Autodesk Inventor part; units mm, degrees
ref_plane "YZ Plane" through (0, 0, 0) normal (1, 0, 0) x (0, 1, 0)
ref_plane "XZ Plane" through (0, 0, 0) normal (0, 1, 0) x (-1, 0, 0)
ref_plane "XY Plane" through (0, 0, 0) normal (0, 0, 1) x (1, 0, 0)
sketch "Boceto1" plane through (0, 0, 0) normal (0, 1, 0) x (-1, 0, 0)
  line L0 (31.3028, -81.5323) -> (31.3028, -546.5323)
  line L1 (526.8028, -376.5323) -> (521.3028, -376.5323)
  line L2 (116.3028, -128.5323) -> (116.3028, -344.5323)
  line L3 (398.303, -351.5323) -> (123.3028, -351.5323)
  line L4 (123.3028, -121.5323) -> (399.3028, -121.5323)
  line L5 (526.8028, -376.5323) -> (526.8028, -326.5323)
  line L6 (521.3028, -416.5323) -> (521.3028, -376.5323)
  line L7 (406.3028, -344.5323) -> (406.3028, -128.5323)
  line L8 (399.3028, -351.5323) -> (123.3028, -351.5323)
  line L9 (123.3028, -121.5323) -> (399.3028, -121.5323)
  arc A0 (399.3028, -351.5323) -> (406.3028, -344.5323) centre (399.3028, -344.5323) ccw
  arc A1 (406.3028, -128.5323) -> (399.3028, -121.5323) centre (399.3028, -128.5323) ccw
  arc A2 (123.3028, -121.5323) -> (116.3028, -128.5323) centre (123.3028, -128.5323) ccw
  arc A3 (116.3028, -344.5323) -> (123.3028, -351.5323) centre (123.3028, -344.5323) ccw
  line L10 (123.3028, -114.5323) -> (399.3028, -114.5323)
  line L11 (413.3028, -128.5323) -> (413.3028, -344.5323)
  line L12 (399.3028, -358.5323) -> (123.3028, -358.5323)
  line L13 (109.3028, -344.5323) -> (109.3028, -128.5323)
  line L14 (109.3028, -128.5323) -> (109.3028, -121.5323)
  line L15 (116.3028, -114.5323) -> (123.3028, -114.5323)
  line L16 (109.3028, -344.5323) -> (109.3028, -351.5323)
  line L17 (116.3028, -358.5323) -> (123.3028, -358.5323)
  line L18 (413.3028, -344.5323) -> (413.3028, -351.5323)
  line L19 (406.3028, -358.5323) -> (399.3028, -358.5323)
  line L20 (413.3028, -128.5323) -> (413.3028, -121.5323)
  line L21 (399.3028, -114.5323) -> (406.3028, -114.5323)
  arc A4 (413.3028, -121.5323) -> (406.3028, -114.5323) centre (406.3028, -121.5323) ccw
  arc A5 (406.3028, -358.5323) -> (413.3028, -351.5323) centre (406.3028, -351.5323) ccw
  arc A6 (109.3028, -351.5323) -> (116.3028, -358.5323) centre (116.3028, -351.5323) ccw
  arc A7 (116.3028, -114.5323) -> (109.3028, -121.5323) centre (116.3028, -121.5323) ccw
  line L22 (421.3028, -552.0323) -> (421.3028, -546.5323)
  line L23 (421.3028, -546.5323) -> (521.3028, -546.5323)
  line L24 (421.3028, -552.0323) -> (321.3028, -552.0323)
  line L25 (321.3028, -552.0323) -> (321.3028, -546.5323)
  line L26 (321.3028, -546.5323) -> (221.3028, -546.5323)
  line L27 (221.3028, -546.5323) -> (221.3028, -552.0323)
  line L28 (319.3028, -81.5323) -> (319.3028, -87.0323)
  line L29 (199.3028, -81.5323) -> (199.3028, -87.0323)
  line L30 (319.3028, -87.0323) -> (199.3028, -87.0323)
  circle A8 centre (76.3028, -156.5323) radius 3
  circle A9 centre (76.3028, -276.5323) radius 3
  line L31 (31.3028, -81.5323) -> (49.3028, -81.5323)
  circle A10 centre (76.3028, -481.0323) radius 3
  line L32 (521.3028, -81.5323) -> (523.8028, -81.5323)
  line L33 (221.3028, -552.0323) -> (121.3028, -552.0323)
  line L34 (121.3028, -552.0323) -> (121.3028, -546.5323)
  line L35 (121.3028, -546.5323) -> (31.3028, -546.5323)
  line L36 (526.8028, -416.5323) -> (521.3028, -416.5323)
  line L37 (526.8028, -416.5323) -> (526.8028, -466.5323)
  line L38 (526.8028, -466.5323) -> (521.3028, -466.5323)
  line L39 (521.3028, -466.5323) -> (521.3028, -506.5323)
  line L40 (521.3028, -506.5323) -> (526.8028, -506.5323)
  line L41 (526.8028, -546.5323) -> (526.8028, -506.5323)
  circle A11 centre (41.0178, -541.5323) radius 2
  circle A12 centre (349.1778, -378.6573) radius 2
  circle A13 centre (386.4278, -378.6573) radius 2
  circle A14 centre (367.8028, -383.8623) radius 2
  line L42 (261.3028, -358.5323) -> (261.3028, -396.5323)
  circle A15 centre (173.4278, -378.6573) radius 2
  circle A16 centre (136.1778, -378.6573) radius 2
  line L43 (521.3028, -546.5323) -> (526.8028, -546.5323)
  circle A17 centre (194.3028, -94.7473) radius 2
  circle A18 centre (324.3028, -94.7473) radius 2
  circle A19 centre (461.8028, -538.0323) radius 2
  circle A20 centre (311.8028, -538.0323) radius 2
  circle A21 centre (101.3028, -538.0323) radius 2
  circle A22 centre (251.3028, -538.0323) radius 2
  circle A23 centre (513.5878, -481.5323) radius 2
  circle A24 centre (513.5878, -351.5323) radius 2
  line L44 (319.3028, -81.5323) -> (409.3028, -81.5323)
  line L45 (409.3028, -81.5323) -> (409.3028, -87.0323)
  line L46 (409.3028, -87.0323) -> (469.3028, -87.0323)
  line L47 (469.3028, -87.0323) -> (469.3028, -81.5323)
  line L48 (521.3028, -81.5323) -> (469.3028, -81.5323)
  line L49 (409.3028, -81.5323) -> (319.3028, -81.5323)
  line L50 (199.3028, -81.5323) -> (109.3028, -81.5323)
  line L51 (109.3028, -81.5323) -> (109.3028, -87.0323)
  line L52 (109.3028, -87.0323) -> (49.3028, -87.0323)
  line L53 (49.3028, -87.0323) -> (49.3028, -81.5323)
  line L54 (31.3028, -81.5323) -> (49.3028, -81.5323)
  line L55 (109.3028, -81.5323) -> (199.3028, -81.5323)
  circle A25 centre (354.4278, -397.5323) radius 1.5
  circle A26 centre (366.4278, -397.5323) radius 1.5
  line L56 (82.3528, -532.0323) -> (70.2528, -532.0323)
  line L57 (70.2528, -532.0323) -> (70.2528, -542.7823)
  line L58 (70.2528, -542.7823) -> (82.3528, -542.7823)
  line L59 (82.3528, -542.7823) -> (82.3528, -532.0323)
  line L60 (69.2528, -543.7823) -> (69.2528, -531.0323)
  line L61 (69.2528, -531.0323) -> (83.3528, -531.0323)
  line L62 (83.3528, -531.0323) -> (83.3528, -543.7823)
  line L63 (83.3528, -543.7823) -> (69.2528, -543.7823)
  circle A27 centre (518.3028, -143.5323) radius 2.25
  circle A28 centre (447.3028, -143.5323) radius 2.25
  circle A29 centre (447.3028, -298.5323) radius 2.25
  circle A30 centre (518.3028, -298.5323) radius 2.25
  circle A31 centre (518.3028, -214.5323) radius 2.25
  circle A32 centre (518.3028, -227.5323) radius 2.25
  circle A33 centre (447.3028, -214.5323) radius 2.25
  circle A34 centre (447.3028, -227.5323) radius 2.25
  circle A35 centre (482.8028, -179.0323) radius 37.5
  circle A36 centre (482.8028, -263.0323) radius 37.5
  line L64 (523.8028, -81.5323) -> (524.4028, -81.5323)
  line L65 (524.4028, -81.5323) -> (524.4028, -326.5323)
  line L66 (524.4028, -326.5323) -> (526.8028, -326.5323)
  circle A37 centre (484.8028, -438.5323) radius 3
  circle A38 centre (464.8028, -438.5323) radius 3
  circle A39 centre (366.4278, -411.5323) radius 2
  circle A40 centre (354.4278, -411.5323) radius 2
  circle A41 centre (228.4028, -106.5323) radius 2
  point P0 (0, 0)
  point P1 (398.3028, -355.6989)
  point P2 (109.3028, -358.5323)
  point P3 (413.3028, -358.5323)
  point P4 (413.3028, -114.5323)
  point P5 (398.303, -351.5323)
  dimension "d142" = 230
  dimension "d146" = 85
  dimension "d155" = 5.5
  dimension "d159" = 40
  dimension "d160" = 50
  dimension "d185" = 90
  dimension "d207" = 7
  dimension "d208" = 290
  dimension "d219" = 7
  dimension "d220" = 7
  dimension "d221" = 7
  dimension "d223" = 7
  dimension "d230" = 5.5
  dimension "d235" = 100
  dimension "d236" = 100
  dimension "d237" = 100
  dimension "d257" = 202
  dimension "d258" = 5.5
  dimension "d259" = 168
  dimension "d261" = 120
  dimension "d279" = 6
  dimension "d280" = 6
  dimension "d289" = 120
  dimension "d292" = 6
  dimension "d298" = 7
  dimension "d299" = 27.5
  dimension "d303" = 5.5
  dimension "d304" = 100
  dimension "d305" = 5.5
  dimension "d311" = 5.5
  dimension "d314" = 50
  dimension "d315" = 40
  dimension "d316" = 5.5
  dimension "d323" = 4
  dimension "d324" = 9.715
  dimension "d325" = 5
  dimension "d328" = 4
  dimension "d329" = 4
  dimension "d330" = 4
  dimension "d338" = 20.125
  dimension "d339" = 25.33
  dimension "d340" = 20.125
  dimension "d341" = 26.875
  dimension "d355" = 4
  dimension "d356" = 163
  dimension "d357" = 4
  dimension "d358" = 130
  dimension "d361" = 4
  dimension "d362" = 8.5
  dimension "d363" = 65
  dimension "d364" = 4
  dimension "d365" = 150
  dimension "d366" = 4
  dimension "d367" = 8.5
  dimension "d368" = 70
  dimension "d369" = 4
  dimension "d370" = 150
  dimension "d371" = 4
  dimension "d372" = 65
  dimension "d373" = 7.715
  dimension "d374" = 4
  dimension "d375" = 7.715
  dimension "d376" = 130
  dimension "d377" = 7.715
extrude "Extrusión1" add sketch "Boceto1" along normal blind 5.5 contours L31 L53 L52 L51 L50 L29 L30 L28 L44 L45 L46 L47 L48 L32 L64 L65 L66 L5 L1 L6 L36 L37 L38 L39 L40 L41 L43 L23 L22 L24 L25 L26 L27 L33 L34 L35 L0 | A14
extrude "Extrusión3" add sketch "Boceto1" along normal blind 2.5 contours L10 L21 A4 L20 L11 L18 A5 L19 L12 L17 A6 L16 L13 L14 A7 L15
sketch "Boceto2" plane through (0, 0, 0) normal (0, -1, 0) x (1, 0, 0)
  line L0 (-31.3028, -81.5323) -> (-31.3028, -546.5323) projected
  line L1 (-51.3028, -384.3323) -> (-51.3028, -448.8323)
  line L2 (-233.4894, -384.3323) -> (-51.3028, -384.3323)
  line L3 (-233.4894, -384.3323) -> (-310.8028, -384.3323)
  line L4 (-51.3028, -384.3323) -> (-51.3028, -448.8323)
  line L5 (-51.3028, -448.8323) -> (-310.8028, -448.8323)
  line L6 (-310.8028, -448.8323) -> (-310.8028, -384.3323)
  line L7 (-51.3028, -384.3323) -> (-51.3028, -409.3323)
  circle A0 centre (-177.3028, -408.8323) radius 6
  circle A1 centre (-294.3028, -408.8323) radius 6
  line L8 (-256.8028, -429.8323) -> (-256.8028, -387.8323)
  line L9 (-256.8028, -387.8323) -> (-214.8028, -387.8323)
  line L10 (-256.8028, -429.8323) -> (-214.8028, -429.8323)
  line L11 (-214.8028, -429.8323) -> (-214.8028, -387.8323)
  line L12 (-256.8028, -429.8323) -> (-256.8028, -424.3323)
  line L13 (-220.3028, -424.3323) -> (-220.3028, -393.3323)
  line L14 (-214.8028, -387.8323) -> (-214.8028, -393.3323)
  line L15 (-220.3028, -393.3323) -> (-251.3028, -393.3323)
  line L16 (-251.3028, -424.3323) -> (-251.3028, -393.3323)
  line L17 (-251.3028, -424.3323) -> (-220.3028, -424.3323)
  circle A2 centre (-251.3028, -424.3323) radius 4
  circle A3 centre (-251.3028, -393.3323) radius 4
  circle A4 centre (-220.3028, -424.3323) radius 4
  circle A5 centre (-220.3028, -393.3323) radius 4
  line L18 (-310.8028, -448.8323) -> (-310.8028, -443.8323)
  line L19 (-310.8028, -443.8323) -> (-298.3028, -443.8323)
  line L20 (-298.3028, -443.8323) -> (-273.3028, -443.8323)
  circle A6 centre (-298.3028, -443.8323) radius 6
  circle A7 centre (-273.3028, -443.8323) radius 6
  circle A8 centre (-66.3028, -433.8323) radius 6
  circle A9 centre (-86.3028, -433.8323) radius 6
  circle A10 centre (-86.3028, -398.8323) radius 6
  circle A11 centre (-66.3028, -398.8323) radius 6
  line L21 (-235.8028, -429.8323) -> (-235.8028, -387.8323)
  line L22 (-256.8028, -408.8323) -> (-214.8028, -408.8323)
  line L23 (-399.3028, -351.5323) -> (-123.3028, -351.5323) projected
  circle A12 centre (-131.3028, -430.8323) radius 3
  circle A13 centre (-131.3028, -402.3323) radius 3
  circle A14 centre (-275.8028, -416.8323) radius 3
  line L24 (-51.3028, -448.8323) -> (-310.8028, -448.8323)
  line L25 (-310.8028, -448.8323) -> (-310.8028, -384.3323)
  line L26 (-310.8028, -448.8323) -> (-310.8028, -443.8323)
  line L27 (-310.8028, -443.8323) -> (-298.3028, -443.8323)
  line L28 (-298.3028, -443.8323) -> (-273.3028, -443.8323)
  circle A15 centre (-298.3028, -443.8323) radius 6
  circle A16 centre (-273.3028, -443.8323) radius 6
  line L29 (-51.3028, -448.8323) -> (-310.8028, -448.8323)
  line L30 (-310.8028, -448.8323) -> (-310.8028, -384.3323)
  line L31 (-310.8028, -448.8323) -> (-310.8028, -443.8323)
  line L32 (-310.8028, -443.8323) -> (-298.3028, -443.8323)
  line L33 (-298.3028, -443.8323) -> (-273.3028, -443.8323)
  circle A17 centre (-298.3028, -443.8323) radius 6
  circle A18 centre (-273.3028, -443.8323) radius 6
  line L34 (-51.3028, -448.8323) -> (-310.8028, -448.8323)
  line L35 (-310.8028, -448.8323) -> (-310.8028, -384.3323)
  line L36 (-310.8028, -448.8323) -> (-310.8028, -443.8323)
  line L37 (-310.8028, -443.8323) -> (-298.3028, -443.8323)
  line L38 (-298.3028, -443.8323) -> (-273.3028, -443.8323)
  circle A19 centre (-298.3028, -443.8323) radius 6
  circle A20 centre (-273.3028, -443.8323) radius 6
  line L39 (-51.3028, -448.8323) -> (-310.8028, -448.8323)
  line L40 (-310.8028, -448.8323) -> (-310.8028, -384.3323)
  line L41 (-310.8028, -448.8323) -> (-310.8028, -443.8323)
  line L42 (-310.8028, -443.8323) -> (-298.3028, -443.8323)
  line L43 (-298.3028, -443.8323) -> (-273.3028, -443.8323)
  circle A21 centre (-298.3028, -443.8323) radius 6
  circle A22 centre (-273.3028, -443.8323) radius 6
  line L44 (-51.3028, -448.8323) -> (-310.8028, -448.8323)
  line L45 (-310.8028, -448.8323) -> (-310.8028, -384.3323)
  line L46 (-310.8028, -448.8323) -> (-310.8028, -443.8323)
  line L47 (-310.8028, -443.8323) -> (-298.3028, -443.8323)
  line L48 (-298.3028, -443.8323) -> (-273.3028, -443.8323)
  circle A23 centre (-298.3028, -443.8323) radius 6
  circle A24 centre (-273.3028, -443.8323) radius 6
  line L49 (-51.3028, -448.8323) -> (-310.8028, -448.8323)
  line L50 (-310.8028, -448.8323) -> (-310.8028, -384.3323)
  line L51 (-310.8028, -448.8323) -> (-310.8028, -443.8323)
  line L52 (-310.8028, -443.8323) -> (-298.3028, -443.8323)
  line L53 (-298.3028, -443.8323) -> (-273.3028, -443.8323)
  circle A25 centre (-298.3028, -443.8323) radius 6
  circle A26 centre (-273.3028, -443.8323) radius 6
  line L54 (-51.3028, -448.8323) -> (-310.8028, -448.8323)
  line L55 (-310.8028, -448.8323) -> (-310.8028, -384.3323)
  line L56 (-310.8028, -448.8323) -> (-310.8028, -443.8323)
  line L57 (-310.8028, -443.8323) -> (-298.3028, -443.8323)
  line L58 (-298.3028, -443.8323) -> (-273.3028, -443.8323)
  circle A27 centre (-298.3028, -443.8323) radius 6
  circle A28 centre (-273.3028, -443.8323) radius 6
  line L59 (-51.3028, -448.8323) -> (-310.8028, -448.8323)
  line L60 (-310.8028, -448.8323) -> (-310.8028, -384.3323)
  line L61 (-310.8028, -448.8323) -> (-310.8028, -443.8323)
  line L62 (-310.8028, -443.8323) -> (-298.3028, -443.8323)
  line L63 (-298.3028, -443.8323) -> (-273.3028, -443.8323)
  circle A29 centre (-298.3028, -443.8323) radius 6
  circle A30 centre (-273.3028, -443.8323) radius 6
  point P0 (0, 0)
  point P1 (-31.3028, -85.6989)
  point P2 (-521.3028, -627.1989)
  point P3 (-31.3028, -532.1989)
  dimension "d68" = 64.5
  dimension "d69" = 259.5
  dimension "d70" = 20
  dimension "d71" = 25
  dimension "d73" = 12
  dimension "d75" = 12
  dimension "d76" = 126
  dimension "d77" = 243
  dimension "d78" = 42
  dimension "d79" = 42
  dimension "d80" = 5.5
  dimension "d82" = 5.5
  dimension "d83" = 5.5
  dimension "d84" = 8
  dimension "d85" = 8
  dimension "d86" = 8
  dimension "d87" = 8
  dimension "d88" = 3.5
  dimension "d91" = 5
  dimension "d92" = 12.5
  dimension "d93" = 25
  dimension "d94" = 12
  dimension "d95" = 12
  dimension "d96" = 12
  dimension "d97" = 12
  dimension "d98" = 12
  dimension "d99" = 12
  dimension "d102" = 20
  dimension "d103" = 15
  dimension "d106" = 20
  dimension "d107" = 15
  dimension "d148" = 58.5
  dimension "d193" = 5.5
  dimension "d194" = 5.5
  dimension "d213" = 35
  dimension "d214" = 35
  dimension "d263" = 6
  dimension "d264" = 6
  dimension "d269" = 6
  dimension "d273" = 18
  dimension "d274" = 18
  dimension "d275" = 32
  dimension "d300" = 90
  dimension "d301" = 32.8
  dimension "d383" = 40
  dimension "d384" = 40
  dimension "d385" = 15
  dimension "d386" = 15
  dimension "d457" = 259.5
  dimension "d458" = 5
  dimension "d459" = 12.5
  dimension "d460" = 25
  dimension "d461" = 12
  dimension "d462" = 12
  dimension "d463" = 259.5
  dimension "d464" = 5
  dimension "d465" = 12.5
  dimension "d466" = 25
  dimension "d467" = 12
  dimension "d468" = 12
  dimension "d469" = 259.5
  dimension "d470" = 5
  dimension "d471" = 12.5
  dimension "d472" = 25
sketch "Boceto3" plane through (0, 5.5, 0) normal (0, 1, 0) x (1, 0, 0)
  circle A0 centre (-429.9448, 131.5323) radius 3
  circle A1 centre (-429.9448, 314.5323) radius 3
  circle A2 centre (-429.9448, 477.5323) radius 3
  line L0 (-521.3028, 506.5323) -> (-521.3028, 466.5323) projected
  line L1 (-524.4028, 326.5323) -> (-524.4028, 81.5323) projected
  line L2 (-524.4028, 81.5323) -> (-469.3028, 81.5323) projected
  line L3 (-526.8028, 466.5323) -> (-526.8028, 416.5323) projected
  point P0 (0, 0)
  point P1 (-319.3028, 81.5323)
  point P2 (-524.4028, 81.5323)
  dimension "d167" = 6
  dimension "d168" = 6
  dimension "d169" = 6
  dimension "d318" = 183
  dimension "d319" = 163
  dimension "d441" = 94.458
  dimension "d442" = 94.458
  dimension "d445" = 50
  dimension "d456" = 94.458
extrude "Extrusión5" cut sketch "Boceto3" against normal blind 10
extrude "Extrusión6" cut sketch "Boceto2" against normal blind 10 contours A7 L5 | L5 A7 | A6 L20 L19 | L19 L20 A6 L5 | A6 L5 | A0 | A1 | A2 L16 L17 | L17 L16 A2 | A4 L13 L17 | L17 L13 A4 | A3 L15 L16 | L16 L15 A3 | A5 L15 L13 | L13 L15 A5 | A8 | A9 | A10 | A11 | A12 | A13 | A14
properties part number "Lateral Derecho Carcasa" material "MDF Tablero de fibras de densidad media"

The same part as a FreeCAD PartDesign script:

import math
import FreeCAD as App
import Part
import Sketcher
from FreeCAD import Vector

doc = App.newDocument("Part")
body = doc.addObject("PartDesign::Body", "Body")

# Sketch on XZ plane
sketch1 = body.newObject("Sketcher::SketchObject", "Sketch")
sketch1.AttachmentSupport = (doc.getObject("XZ_Plane"), [""])
sketch1.MapMode = "FlatFace"
sketch1.addGeometry([
    Part.LineSegment(Vector(-49.3, -81.5, 0), Vector(-31.3, -81.5, 0)),  # 0
    Part.LineSegment(Vector(-31.3, -81.5, 0), Vector(-31.3, -546.5, 0)),  # 1
    Part.LineSegment(Vector(-31.3, -546.5, 0), Vector(-121.3, -546.5, 0)),  # 2
    Part.LineSegment(Vector(-121.3, -546.5, 0), Vector(-121.3, -552, 0)),  # 3
    Part.LineSegment(Vector(-121.3, -552, 0), Vector(-221.3, -552, 0)),  # 4
    Part.LineSegment(Vector(-221.3, -552, 0), Vector(-221.3, -546.5, 0)),  # 5
    Part.LineSegment(Vector(-221.3, -546.5, 0), Vector(-321.3, -546.5, 0)),  # 6
    Part.LineSegment(Vector(-321.3, -546.5, 0), Vector(-321.3, -552, 0)),  # 7
    Part.LineSegment(Vector(-321.3, -552, 0), Vector(-421.3, -552, 0)),  # 8
    Part.LineSegment(Vector(-421.3, -552, 0), Vector(-421.3, -546.5, 0)),  # 9
    Part.LineSegment(Vector(-421.3, -546.5, 0), Vector(-526.8, -546.5, 0)),  # 10
    Part.LineSegment(Vector(-526.8, -546.5, 0), Vector(-526.8, -506.5, 0)),  # 11
    Part.LineSegment(Vector(-526.8, -506.5, 0), Vector(-521.3, -506.5, 0)),  # 12
    Part.LineSegment(Vector(-521.3, -506.5, 0), Vector(-521.3, -466.5, 0)),  # 13
    Part.LineSegment(Vector(-521.3, -466.5, 0), Vector(-526.8, -466.5, 0)),  # 14
    Part.LineSegment(Vector(-526.8, -466.5, 0), Vector(-526.8, -416.5, 0)),  # 15
    Part.LineSegment(Vector(-526.8, -416.5, 0), Vector(-521.3, -416.5, 0)),  # 16
    Part.LineSegment(Vector(-521.3, -416.5, 0), Vector(-521.3, -376.5, 0)),  # 17
    Part.LineSegment(Vector(-521.3, -376.5, 0), Vector(-526.8, -376.5, 0)),  # 18
    Part.LineSegment(Vector(-526.8, -376.5, 0), Vector(-526.8, -326.5, 0)),  # 19
    Part.LineSegment(Vector(-526.8, -326.5, 0), Vector(-524.4, -326.5, 0)),  # 20
    Part.LineSegment(Vector(-524.4, -326.5, 0), Vector(-524.4, -81.5, 0)),  # 21
    Part.LineSegment(Vector(-524.4, -81.5, 0), Vector(-469.3, -81.5, 0)),  # 22
    Part.LineSegment(Vector(-469.3, -81.5, 0), Vector(-469.3, -87, 0)),  # 23
    Part.LineSegment(Vector(-469.3, -87, 0), Vector(-409.3, -87, 0)),  # 24
    Part.LineSegment(Vector(-409.3, -87, 0), Vector(-409.3, -81.5, 0)),  # 25
    Part.LineSegment(Vector(-409.3, -81.5, 0), Vector(-319.3, -81.5, 0)),  # 26
    Part.LineSegment(Vector(-319.3, -81.5, 0), Vector(-319.3, -87, 0)),  # 27
    Part.LineSegment(Vector(-319.3, -87, 0), Vector(-199.3, -87, 0)),  # 28
    Part.LineSegment(Vector(-199.3, -87, 0), Vector(-199.3, -81.5, 0)),  # 29
    Part.LineSegment(Vector(-199.3, -81.5, 0), Vector(-109.3, -81.5, 0)),  # 30
    Part.LineSegment(Vector(-109.3, -81.5, 0), Vector(-109.3, -87, 0)),  # 31
    Part.LineSegment(Vector(-109.3, -87, 0), Vector(-49.3, -87, 0)),  # 32
    Part.LineSegment(Vector(-49.3, -87, 0), Vector(-49.3, -81.5, 0)),  # 33
    Part.Circle(Vector(-41, -541.5, 0), Vector(0, 0, 1), 2),  # 34
    Part.LineSegment(Vector(-83.4, -543.8, 0), Vector(-69.3, -543.8, 0)),  # 35
    Part.LineSegment(Vector(-69.3, -543.8, 0), Vector(-69.3, -531, 0)),  # 36
    Part.LineSegment(Vector(-69.3, -531, 0), Vector(-83.4, -531, 0)),  # 37
    Part.LineSegment(Vector(-83.4, -531, 0), Vector(-83.4, -543.8, 0)),  # 38
    Part.Circle(Vector(-101.3, -538, 0), Vector(0, 0, 1), 2),  # 39
    Part.Circle(Vector(-76.3, -481, 0), Vector(0, 0, 1), 3),  # 40
    Part.Circle(Vector(-251.3, -538, 0), Vector(0, 0, 1), 2),  # 41
    Part.Circle(Vector(-136.2, -378.7, 0), Vector(0, 0, 1), 2),  # 42
    Part.Circle(Vector(-173.4, -378.7, 0), Vector(0, 0, 1), 2),  # 43
    Part.Circle(Vector(-311.8, -538, 0), Vector(0, 0, 1), 2),  # 44
    Part.Circle(Vector(-461.8, -538, 0), Vector(0, 0, 1), 2),  # 45
    Part.Circle(Vector(-464.8, -438.5, 0), Vector(0, 0, 1), 3),  # 46
    Part.Circle(Vector(-513.6, -481.5, 0), Vector(0, 0, 1), 2),  # 47
    Part.Circle(Vector(-484.8, -438.5, 0), Vector(0, 0, 1), 3),  # 48
    Part.Circle(Vector(-354.4, -411.5, 0), Vector(0, 0, 1), 2),  # 49
    Part.Circle(Vector(-366.4, -411.5, 0), Vector(0, 0, 1), 2),  # 50
    Part.Circle(Vector(-354.4, -397.5, 0), Vector(0, 0, 1), 1.5),  # 51
    Part.Circle(Vector(-366.4, -397.5, 0), Vector(0, 0, 1), 1.5),  # 52
    Part.Circle(Vector(-349.2, -378.7, 0), Vector(0, 0, 1), 2),  # 53
    Part.Circle(Vector(-386.4, -378.7, 0), Vector(0, 0, 1), 2),  # 54
    Part.Circle(Vector(-513.6, -351.5, 0), Vector(0, 0, 1), 2),  # 55
    Part.Circle(Vector(-76.3, -276.5, 0), Vector(0, 0, 1), 3),  # 56
    Part.LineSegment(Vector(-116.3, -114.5, 0), Vector(-406.3, -114.5, 0)),  # 57
    Part.ArcOfCircle(Part.Circle(Vector(-406.3, -121.5, 0), Vector(0, 0, 1), 7), math.radians(90), math.radians(180)),  # 58
    Part.LineSegment(Vector(-413.3, -121.5, 0), Vector(-413.3, -351.5, 0)),  # 59
    Part.ArcOfCircle(Part.Circle(Vector(-406.3, -351.5, 0), Vector(0, 0, 1), 7), math.radians(180), math.radians(270)),  # 60
    Part.LineSegment(Vector(-406.3, -358.5, 0), Vector(-116.3, -358.5, 0)),  # 61
    Part.ArcOfCircle(Part.Circle(Vector(-116.3, -351.5, 0), Vector(0, 0, 1), 7), math.radians(-90), math.radians(0)),  # 62
    Part.LineSegment(Vector(-109.3, -351.5, 0), Vector(-109.3, -121.5, 0)),  # 63
    Part.ArcOfCircle(Part.Circle(Vector(-116.3, -121.5, 0), Vector(0, 0, 1), 7), math.radians(0), math.radians(90)),  # 64
    Part.Circle(Vector(-76.3, -156.5, 0), Vector(0, 0, 1), 3),  # 65
    Part.Circle(Vector(-194.3, -94.7, 0), Vector(0, 0, 1), 2),  # 66
    Part.Circle(Vector(-228.4, -106.5, 0), Vector(0, 0, 1), 2),  # 67
    Part.Circle(Vector(-447.3, -298.5, 0), Vector(0, 0, 1), 2.2),  # 68
    Part.Circle(Vector(-518.3, -298.5, 0), Vector(0, 0, 1), 2.2),  # 69
    Part.Circle(Vector(-482.8, -263, 0), Vector(0, 0, 1), 37.5),  # 70
    Part.Circle(Vector(-447.3, -227.5, 0), Vector(0, 0, 1), 2.2),  # 71
    Part.Circle(Vector(-447.3, -214.5, 0), Vector(0, 0, 1), 2.2),  # 72
    Part.Circle(Vector(-518.3, -227.5, 0), Vector(0, 0, 1), 2.2),  # 73
    Part.Circle(Vector(-518.3, -214.5, 0), Vector(0, 0, 1), 2.2),  # 74
    Part.Circle(Vector(-324.3, -94.7, 0), Vector(0, 0, 1), 2),  # 75
    Part.Circle(Vector(-447.3, -143.5, 0), Vector(0, 0, 1), 2.2),  # 76
    Part.Circle(Vector(-482.8, -179, 0), Vector(0, 0, 1), 37.5),  # 77
    Part.Circle(Vector(-518.3, -143.5, 0), Vector(0, 0, 1), 2.2),  # 78
], False)
sketch1.addConstraint([
    Sketcher.Constraint("Coincident", 0, 2, 1, 1),
    Sketcher.Constraint("Coincident", 1, 2, 2, 1),
    Sketcher.Constraint("Coincident", 2, 2, 3, 1),
    Sketcher.Constraint("Coincident", 3, 2, 4, 1),
    Sketcher.Constraint("Coincident", 4, 2, 5, 1),
    Sketcher.Constraint("Coincident", 5, 2, 6, 1),
    Sketcher.Constraint("Coincident", 6, 2, 7, 1),
    Sketcher.Constraint("Coincident", 7, 2, 8, 1),
    Sketcher.Constraint("Coincident", 8, 2, 9, 1),
    Sketcher.Constraint("Coincident", 9, 2, 10, 1),
    Sketcher.Constraint("Coincident", 10, 2, 11, 1),
    Sketcher.Constraint("Coincident", 11, 2, 12, 1),
    Sketcher.Constraint("Coincident", 12, 2, 13, 1),
    Sketcher.Constraint("Coincident", 13, 2, 14, 1),
    Sketcher.Constraint("Coincident", 14, 2, 15, 1),
    Sketcher.Constraint("Coincident", 15, 2, 16, 1),
    Sketcher.Constraint("Coincident", 16, 2, 17, 1),
    Sketcher.Constraint("Coincident", 17, 2, 18, 1),
    Sketcher.Constraint("Coincident", 18, 2, 19, 1),
    Sketcher.Constraint("Coincident", 19, 2, 20, 1),
    Sketcher.Constraint("Coincident", 20, 2, 21, 1),
    Sketcher.Constraint("Coincident", 21, 2, 22, 1),
    Sketcher.Constraint("Coincident", 22, 2, 23, 1),
    Sketcher.Constraint("Coincident", 23, 2, 24, 1),
    Sketcher.Constraint("Coincident", 24, 2, 25, 1),
    Sketcher.Constraint("Coincident", 25, 2, 26, 1),
    Sketcher.Constraint("Coincident", 26, 2, 27, 1),
    Sketcher.Constraint("Coincident", 27, 2, 28, 1),
    Sketcher.Constraint("Coincident", 28, 2, 29, 1),
    Sketcher.Constraint("Coincident", 29, 2, 30, 1),
    Sketcher.Constraint("Coincident", 30, 2, 31, 1),
    Sketcher.Constraint("Coincident", 31, 2, 32, 1),
    Sketcher.Constraint("Coincident", 32, 2, 33, 1),
    Sketcher.Constraint("Coincident", 33, 2, 0, 1),
    Sketcher.Constraint("Coincident", 35, 2, 36, 1),
    Sketcher.Constraint("Coincident", 36, 2, 37, 1),
    Sketcher.Constraint("Coincident", 37, 2, 38, 1),
    Sketcher.Constraint("Coincident", 38, 2, 35, 1),
    Sketcher.Constraint("Tangent", 57, 2, 58, 1),
    Sketcher.Constraint("Tangent", 58, 2, 59, 1),
    Sketcher.Constraint("Tangent", 59, 2, 60, 1),
    Sketcher.Constraint("Tangent", 60, 2, 61, 1),
    Sketcher.Constraint("Tangent", 61, 2, 62, 1),
    Sketcher.Constraint("Tangent", 62, 2, 63, 1),
    Sketcher.Constraint("Tangent", 63, 2, 64, 1),
    Sketcher.Constraint("Tangent", 64, 2, 57, 1),
    Sketcher.Constraint("Horizontal", 0),
    Sketcher.Constraint("Vertical", 1),
    Sketcher.Constraint("Horizontal", 2),
    Sketcher.Constraint("Vertical", 3),
    Sketcher.Constraint("Horizontal", 4),
    Sketcher.Constraint("Vertical", 5),
    Sketcher.Constraint("Horizontal", 6),
    Sketcher.Constraint("Vertical", 7),
    Sketcher.Constraint("Horizontal", 8),
    Sketcher.Constraint("Vertical", 9),
    Sketcher.Constraint("Horizontal", 10),
    Sketcher.Constraint("Vertical", 11),
    Sketcher.Constraint("Horizontal", 12),
    Sketcher.Constraint("Vertical", 13),
    Sketcher.Constraint("Horizontal", 14),
    Sketcher.Constraint("Vertical", 15),
    Sketcher.Constraint("Horizontal", 16),
    Sketcher.Constraint("Vertical", 17),
    Sketcher.Constraint("Horizontal", 18),
    Sketcher.Constraint("Vertical", 19),
    Sketcher.Constraint("Horizontal", 20),
    Sketcher.Constraint("Vertical", 21),
    Sketcher.Constraint("Horizontal", 22),
    Sketcher.Constraint("Vertical", 23),
    Sketcher.Constraint("Horizontal", 24),
    Sketcher.Constraint("Vertical", 25),
    Sketcher.Constraint("Horizontal", 26),
    Sketcher.Constraint("Vertical", 27),
    Sketcher.Constraint("Horizontal", 28),
    Sketcher.Constraint("Vertical", 29),
    Sketcher.Constraint("Horizontal", 30),
    Sketcher.Constraint("Vertical", 31),
    Sketcher.Constraint("Horizontal", 32),
    Sketcher.Constraint("Vertical", 33),
    Sketcher.Constraint("Horizontal", 35),
    Sketcher.Constraint("Vertical", 36),
    Sketcher.Constraint("Horizontal", 37),
    Sketcher.Constraint("Vertical", 38),
    Sketcher.Constraint("Horizontal", 57),
    Sketcher.Constraint("Vertical", 59),
    Sketcher.Constraint("Horizontal", 61),
    Sketcher.Constraint("Vertical", 63),
    Sketcher.Constraint("Equal", 34, 39),
    Sketcher.Constraint("Equal", 39, 41),
    Sketcher.Constraint("Equal", 41, 42),
    Sketcher.Constraint("Equal", 42, 43),
    Sketcher.Constraint("Equal", 43, 44),
    Sketcher.Constraint("Equal", 44, 45),
    Sketcher.Constraint("Equal", 40, 46),
    Sketcher.Constraint("Equal", 45, 47),
    Sketcher.Constraint("Equal", 46, 48),
    Sketcher.Constraint("Equal", 47, 49),
    Sketcher.Constraint("Equal", 49, 50),
    Sketcher.Constraint("Equal", 51, 52),
    Sketcher.Constraint("Equal", 50, 53),
    Sketcher.Constraint("Equal", 53, 54),
    Sketcher.Constraint("Equal", 54, 55),
    Sketcher.Constraint("Equal", 48, 56),
    Sketcher.Constraint("Equal", 58, 60),
    Sketcher.Constraint("Equal", 60, 62),
    Sketcher.Constraint("Equal", 62, 64),
    Sketcher.Constraint("Equal", 56, 65),
    Sketcher.Constraint("Equal", 55, 66),
    Sketcher.Constraint("Equal", 66, 67),
    Sketcher.Constraint("Equal", 68, 69),
    Sketcher.Constraint("Equal", 69, 71),
    Sketcher.Constraint("Equal", 71, 72),
    Sketcher.Constraint("Equal", 72, 73),
    Sketcher.Constraint("Equal", 73, 74),
    Sketcher.Constraint("Equal", 67, 75),
    Sketcher.Constraint("Equal", 74, 76),
    Sketcher.Constraint("Equal", 70, 77),
    Sketcher.Constraint("Equal", 76, 78),
    Sketcher.Constraint("Horizontal", 39, 3, 41, 3),
    Sketcher.Constraint("Horizontal", 42, 3, 43, 3),
    Sketcher.Constraint("Horizontal", 41, 3, 44, 3),
    Sketcher.Constraint("Horizontal", 44, 3, 45, 3),
    Sketcher.Constraint("Horizontal", 46, 3, 48, 3),
    Sketcher.Constraint("Horizontal", 49, 3, 50, 3),
    Sketcher.Constraint("Horizontal", 51, 3, 52, 3),
    Sketcher.Constraint("Horizontal", 43, 3, 53, 3),
    Sketcher.Constraint("Horizontal", 53, 3, 54, 3),
    Sketcher.Constraint("Horizontal", 55, 3, 60, 3),
    Sketcher.Constraint("Horizontal", 68, 3, 69, 3),
    Sketcher.Constraint("Horizontal", 71, 3, 73, 3),
    Sketcher.Constraint("Horizontal", 72, 3, 74, 3),
    Sketcher.Constraint("Horizontal", 66, 3, 75, 3),
    Sketcher.Constraint("Horizontal", 76, 3, 78, 3),
    Sketcher.Constraint("Horizontal", 2, 2, 5, 2),
    Sketcher.Constraint("Horizontal", 4, 2, 7, 2),
    Sketcher.Constraint("Horizontal", 6, 2, 9, 2),
    Sketcher.Constraint("Horizontal", 0, 2, 21, 2),
    Sketcher.Constraint("Horizontal", 22, 2, 25, 2),
    Sketcher.Constraint("Horizontal", 24, 2, 27, 2),
    Sketcher.Constraint("Horizontal", 26, 2, 29, 2),
    Sketcher.Constraint("Horizontal", 28, 2, 31, 2),
    Sketcher.Constraint("Vertical", 49, 3, 51, 3),
    Sketcher.Constraint("Vertical", 50, 3, 52, 3),
    Sketcher.Constraint("Vertical", 47, 3, 55, 3),
    Sketcher.Constraint("Vertical", 40, 3, 56, 3),
    Sketcher.Constraint("Vertical", 56, 3, 65, 3),
    Sketcher.Constraint("Vertical", 68, 3, 71, 3),
    Sketcher.Constraint("Vertical", 71, 3, 72, 3),
    Sketcher.Constraint("Vertical", 69, 3, 73, 3),
    Sketcher.Constraint("Vertical", 73, 3, 74, 3),
    Sketcher.Constraint("Vertical", 72, 3, 76, 3),
    Sketcher.Constraint("Vertical", 70, 3, 77, 3),
    Sketcher.Constraint("Vertical", 74, 3, 78, 3),
    Sketcher.Constraint("Vertical", 11, 2, 14, 2),
    Sketcher.Constraint("Vertical", 13, 2, 16, 2),
    Sketcher.Constraint("Vertical", 15, 2, 18, 2),
    Sketcher.Constraint("Vertical", 31, 2, 62, 2),
    Sketcher.Constraint("Equal", 4, 6),
    Sketcher.Constraint("Equal", 6, 8),
    Sketcher.Constraint("Equal", 2, 26),
    Sketcher.Constraint("Equal", 26, 30),
    Sketcher.Constraint("Equal", 24, 32),
    Sketcher.Constraint("Equal", 18, 3),
    Sketcher.Constraint("Equal", 11, 13),
    Sketcher.Constraint("Equal", 13, 17),
    Sketcher.Constraint("Equal", 15, 19),
    Sketcher.Constraint("Equal", 9, 23),
    Sketcher.Constraint("Diameter", 34, 4.0),
    Sketcher.Constraint("Diameter", 40, 6.0),
    Sketcher.Constraint("Radius", 58, 7.0),
    Sketcher.Constraint("DistanceX", 2, 2, 2, 1, 90.0),
    Sketcher.Constraint("DistanceX", 4, 2, 4, 1, 100.0),
    Sketcher.Constraint("DistanceX", 28, 1, 28, 2, 120.0),
    Sketcher.Constraint("DistanceX", 57, 2, 57, 1, 290.0),
    Sketcher.Constraint("DistanceY", 11, 1, 11, 2, 40.0),
    Sketcher.Constraint("DistanceY", 15, 1, 15, 2, 50.0),
    Sketcher.Constraint("DistanceY", 59, 2, 59, 1, 230.0),
    Sketcher.Constraint("Diameter", 51, 3.0),
    Sketcher.Constraint("Diameter", 70, 75.0),
    Sketcher.Constraint("DistanceX", 12, 1, 12, 2, 5.5),
    Sketcher.Constraint("Diameter", 68, 4.5),
    Sketcher.Constraint("DistanceX", 0, 1, 0, 2, 18.0),
    Sketcher.Constraint("DistanceX", 24, 1, 24, 2, 60.0),
    Sketcher.Constraint("DistanceY", 1, 2, 1, 1, 465.0),
    Sketcher.Constraint("DistanceX", 10, 2, 10, 1, 105.5),
    Sketcher.Constraint("DistanceX", 20, 1, 20, 2, 2.4),
    Sketcher.Constraint("DistanceX", 35, 1, 35, 2, 14.1),
    Sketcher.Constraint("DistanceY", 36, 1, 36, 2, 12.75),
    Sketcher.Constraint("DistanceX", 34, 3, -1, 1, 41.0178),
    Sketcher.Constraint("DistanceY", 34, 3, -1, 1, 541.5323),
    Sketcher.Constraint("DistanceX", 39, 3, -1, 1, 101.3028),
    Sketcher.Constraint("DistanceY", 39, 3, -1, 1, 538.0323),
    Sketcher.Constraint("DistanceX", 40, 3, -1, 1, 76.3028),
    Sketcher.Constraint("DistanceY", 40, 3, -1, 1, 481.0323),
    Sketcher.Constraint("DistanceX", 41, 3, -1, 1, 251.3028),
    Sketcher.Constraint("DistanceX", 42, 3, -1, 1, 136.1778),
    Sketcher.Constraint("DistanceY", 42, 3, -1, 1, 378.6573),
    Sketcher.Constraint("DistanceX", 43, 3, -1, 1, 173.4278),
    Sketcher.Constraint("DistanceX", 44, 3, -1, 1, 311.8028),
    Sketcher.Constraint("DistanceX", 45, 3, -1, 1, 461.8028),
    Sketcher.Constraint("DistanceX", 46, 3, -1, 1, 464.8028),
    Sketcher.Constraint("DistanceY", 46, 3, -1, 1, 438.5323),
    Sketcher.Constraint("DistanceX", 47, 3, -1, 1, 513.5878),
    Sketcher.Constraint("DistanceY", 47, 3, -1, 1, 481.5323),
    Sketcher.Constraint("DistanceX", 48, 3, -1, 1, 484.8028),
    Sketcher.Constraint("DistanceX", 49, 3, -1, 1, 354.4278),
    Sketcher.Constraint("DistanceY", 49, 3, -1, 1, 411.5323),
    Sketcher.Constraint("DistanceX", 50, 3, -1, 1, 366.4278),
    Sketcher.Constraint("DistanceY", 51, 3, -1, 1, 397.5323),
    Sketcher.Constraint("DistanceX", 53, 3, -1, 1, 349.1778),
    Sketcher.Constraint("DistanceX", 54, 3, -1, 1, 386.4278),
    Sketcher.Constraint("DistanceY", 55, 3, -1, 1, 351.5323),
    Sketcher.Constraint("DistanceY", 56, 3, -1, 1, 276.5323),
    Sketcher.Constraint("DistanceX", 58, 3, -1, 1, 406.3028),
    Sketcher.Constraint("DistanceY", 65, 3, -1, 1, 156.5323),
    Sketcher.Constraint("DistanceX", 66, 3, -1, 1, 194.3028),
    Sketcher.Constraint("DistanceY", 66, 3, -1, 1, 94.7473),
    Sketcher.Constraint("DistanceX", 67, 3, -1, 1, 228.4028),
    Sketcher.Constraint("DistanceY", 67, 3, -1, 1, 106.5323),
    Sketcher.Constraint("DistanceX", 68, 3, -1, 1, 447.3028),
    Sketcher.Constraint("DistanceY", 68, 3, -1, 1, 298.5323),
    Sketcher.Constraint("DistanceX", 69, 3, -1, 1, 518.3028),
    Sketcher.Constraint("DistanceX", 70, 3, -1, 1, 482.8028),
    Sketcher.Constraint("DistanceY", 70, 3, -1, 1, 263.0323),
    Sketcher.Constraint("DistanceY", 71, 3, -1, 1, 227.5323),
    Sketcher.Constraint("DistanceY", 72, 3, -1, 1, 214.5323),
    Sketcher.Constraint("DistanceX", 75, 3, -1, 1, 324.3028),
    Sketcher.Constraint("DistanceY", 76, 3, -1, 1, 143.5323),
    Sketcher.Constraint("DistanceY", 77, 3, -1, 1, 179.0323),
    Sketcher.Constraint("DistanceY", 0, 2, -1, 1, 81.5323),
    Sketcher.Constraint("DistanceX", 35, 2, -1, 1, 69.2528),
    Sketcher.Constraint("DistanceY", 35, 2, -1, 1, 543.7823),
])
pad1 = body.newObject("PartDesign::Pad", "Pad")
pad1.Profile = sketch1
pad1.Length = 5.5
pad1.Reversed = True

# Sketch on XZ plane
sketch2 = body.newObject("Sketcher::SketchObject", "Sketch001")
sketch2.AttachmentSupport = (doc.getObject("XZ_Plane"), [""])
sketch2.MapMode = "FlatFace"
sketch2.addGeometry([
    Part.LineSegment(Vector(-406, -115, 0), Vector(-116, -115, 0)),  # 0
    Part.ArcOfCircle(Part.Circle(Vector(-116, -122, 0), Vector(0, 0, 1), 7), math.radians(0), math.radians(90)),  # 1
    Part.LineSegment(Vector(-109, -122, 0), Vector(-109, -352, 0)),  # 2
    Part.ArcOfCircle(Part.Circle(Vector(-116, -352, 0), Vector(0, 0, 1), 7), math.radians(-90), math.radians(0)),  # 3
    Part.LineSegment(Vector(-116, -359, 0), Vector(-406, -359, 0)),  # 4
    Part.ArcOfCircle(Part.Circle(Vector(-406, -352, 0), Vector(0, 0, 1), 7), math.radians(180), math.radians(270)),  # 5
    Part.LineSegment(Vector(-413, -352, 0), Vector(-413, -122, 0)),  # 6
    Part.ArcOfCircle(Part.Circle(Vector(-406, -122, 0), Vector(0, 0, 1), 7), math.radians(90), math.radians(180)),  # 7
    Part.LineSegment(Vector(-116, -345, 0), Vector(-116, -129, 0)),  # 8
    Part.ArcOfCircle(Part.Circle(Vector(-123, -129, 0), Vector(0, 0, 1), 7), math.radians(0), math.radians(90)),  # 9
    Part.LineSegment(Vector(-123, -122, 0), Vector(-399, -122, 0)),  # 10
    Part.ArcOfCircle(Part.Circle(Vector(-399, -129, 0), Vector(0, 0, 1), 7), math.radians(90), math.radians(180)),  # 11
    Part.LineSegment(Vector(-406, -129, 0), Vector(-406, -345, 0)),  # 12
    Part.ArcOfCircle(Part.Circle(Vector(-399, -345, 0), Vector(0, 0, 1), 7), math.radians(180), math.radians(270)),  # 13
    Part.LineSegment(Vector(-399, -352, 0), Vector(-123, -352, 0)),  # 14
    Part.ArcOfCircle(Part.Circle(Vector(-123, -345, 0), Vector(0, 0, 1), 7), math.radians(-90), math.radians(0)),  # 15
], False)
sketch2.addConstraint([
    Sketcher.Constraint("Tangent", 0, 2, 1, 2),
    Sketcher.Constraint("Tangent", 1, 1, 2, 1),
    Sketcher.Constraint("Tangent", 2, 2, 3, 2),
    Sketcher.Constraint("Tangent", 3, 1, 4, 1),
    Sketcher.Constraint("Tangent", 4, 2, 5, 2),
    Sketcher.Constraint("Tangent", 5, 1, 6, 1),
    Sketcher.Constraint("Tangent", 6, 2, 7, 2),
    Sketcher.Constraint("Tangent", 7, 1, 0, 1),
    Sketcher.Constraint("Tangent", 8, 2, 9, 1),
    Sketcher.Constraint("Tangent", 9, 2, 10, 1),
    Sketcher.Constraint("Tangent", 10, 2, 11, 1),
    Sketcher.Constraint("Tangent", 11, 2, 12, 1),
    Sketcher.Constraint("Tangent", 12, 2, 13, 1),
    Sketcher.Constraint("Tangent", 13, 2, 14, 1),
    Sketcher.Constraint("Tangent", 14, 2, 15, 1),
    Sketcher.Constraint("Tangent", 15, 2, 8, 1),
    Sketcher.Constraint("Horizontal", 0),
    Sketcher.Constraint("Vertical", 2),
    Sketcher.Constraint("Horizontal", 4),
    Sketcher.Constraint("Vertical", 6),
    Sketcher.Constraint("Vertical", 8),
    Sketcher.Constraint("Horizontal", 10),
    Sketcher.Constraint("Vertical", 12),
    Sketcher.Constraint("Horizontal", 14),
    Sketcher.Constraint("Equal", 1, 3),
    Sketcher.Constraint("Equal", 3, 5),
    Sketcher.Constraint("Equal", 5, 7),
    Sketcher.Constraint("Equal", 7, 9),
    Sketcher.Constraint("Equal", 9, 11),
    Sketcher.Constraint("Equal", 11, 13),
    Sketcher.Constraint("Equal", 13, 15),
    Sketcher.Constraint("Horizontal", 6, 2, 9, 2),
    Sketcher.Constraint("Horizontal", 5, 1, 13, 2),
    Sketcher.Constraint("Vertical", 3, 1, 8, 2),
    Sketcher.Constraint("Vertical", 7, 1, 11, 2),
    Sketcher.Constraint("Radius", 1, 7.0),
    Sketcher.Constraint("DistanceX", 0, 1, 0, 2, 290.0),
    Sketcher.Constraint("DistanceY", 2, 2, 2, 1, 230.0),
    Sketcher.Constraint("DistanceX", 1, 3, -1, 1, 116.3028),
    Sketcher.Constraint("DistanceY", 1, 3, -1, 1, 121.5323),
])
pad2 = body.newObject("PartDesign::Pad", "Pad001")
pad2.Profile = sketch2
pad2.Length = 2.5
pad2.Reversed = True

# Sketch on XZ plane
sketch3 = body.newObject("Sketcher::SketchObject", "Sketch002")
sketch3.AttachmentSupport = (doc.getObject("XZ_Plane"), [""])
sketch3.MapMode = "FlatFace"
sketch3.AttachmentOffset = App.Placement(Vector(0, 0, -5.5), App.Rotation())
sketch3.addGeometry([
    Part.Circle(Vector(-429.9, -131.5, 0), Vector(0, 0, 1), 3),
    Part.Circle(Vector(-429.9, -314.5, 0), Vector(0, 0, 1), 3),
    Part.Circle(Vector(-429.9, -477.5, 0), Vector(0, 0, 1), 3),
], False)
sketch3.addConstraint([
    Sketcher.Constraint("Equal", 0, 1),
    Sketcher.Constraint("Equal", 1, 2),
    Sketcher.Constraint("Vertical", 0, 3, 1, 3),
    Sketcher.Constraint("Vertical", 1, 3, 2, 3),
    Sketcher.Constraint("Diameter", 0, 6.0),
    Sketcher.Constraint("DistanceY", 1, 3, 0, 3, 183.0),
    Sketcher.Constraint("DistanceY", 2, 3, 1, 3, 163.0),
    Sketcher.Constraint("DistanceX", 0, 3, -1, 1, 429.9448),
    Sketcher.Constraint("DistanceY", 0, 3, -1, 1, 131.5323),
])
pocket1 = body.newObject("PartDesign::Pocket", "Pocket")
pocket1.Profile = sketch3
pocket1.Length = 10
pocket1.Reversed = True

# Sketch on XZ plane
sketch4 = body.newObject("Sketcher::SketchObject", "Sketch003")
sketch4.AttachmentSupport = (doc.getObject("XZ_Plane"), [""])
sketch4.MapMode = "FlatFace"
sketch4.addGeometry([
    Part.Circle(Vector(-273.3, -443.8, 0), Vector(0, 0, 1), 6),  # 0
    Part.Circle(Vector(-298.3, -443.8, 0), Vector(0, 0, 1), 6),  # 1
    Part.Circle(Vector(-177.3, -408.8, 0), Vector(0, 0, 1), 6),  # 2
    Part.Circle(Vector(-294.3, -408.8, 0), Vector(0, 0, 1), 6),  # 3
    Part.Circle(Vector(-251.3, -424.3, 0), Vector(0, 0, 1), 4),  # 4
    Part.Circle(Vector(-220.3, -424.3, 0), Vector(0, 0, 1), 4),  # 5
    Part.Circle(Vector(-251.3, -393.3, 0), Vector(0, 0, 1), 4),  # 6
    Part.Circle(Vector(-220.3, -393.3, 0), Vector(0, 0, 1), 4),  # 7
    Part.Circle(Vector(-66.3, -433.8, 0), Vector(0, 0, 1), 6),  # 8
    Part.Circle(Vector(-86.3, -433.8, 0), Vector(0, 0, 1), 6),  # 9
    Part.Circle(Vector(-86.3, -398.8, 0), Vector(0, 0, 1), 6),  # 10
    Part.Circle(Vector(-66.3, -398.8, 0), Vector(0, 0, 1), 6),  # 11
    Part.Circle(Vector(-131.3, -430.8, 0), Vector(0, 0, 1), 3),  # 12
    Part.Circle(Vector(-131.3, -402.3, 0), Vector(0, 0, 1), 3),  # 13
    Part.Circle(Vector(-275.8, -416.8, 0), Vector(0, 0, 1), 3),  # 14
], False)
sketch4.addConstraint([
    Sketcher.Constraint("Equal", 0, 1),
    Sketcher.Constraint("Equal", 1, 2),
    Sketcher.Constraint("Equal", 2, 3),
    Sketcher.Constraint("Equal", 4, 5),
    Sketcher.Constraint("Equal", 5, 6),
    Sketcher.Constraint("Equal", 6, 7),
    Sketcher.Constraint("Equal", 3, 8),
    Sketcher.Constraint("Equal", 8, 9),
    Sketcher.Constraint("Equal", 9, 10),
    Sketcher.Constraint("Equal", 10, 11),
    Sketcher.Constraint("Equal", 12, 13),
    Sketcher.Constraint("Equal", 13, 14),
    Sketcher.Constraint("Horizontal", 0, 3, 1, 3),
    Sketcher.Constraint("Horizontal", 2, 3, 3, 3),
    Sketcher.Constraint("Horizontal", 4, 3, 5, 3),
    Sketcher.Constraint("Horizontal", 6, 3, 7, 3),
    Sketcher.Constraint("Horizontal", 8, 3, 9, 3),
    Sketcher.Constraint("Horizontal", 10, 3, 11, 3),
    Sketcher.Constraint("Vertical", 4, 3, 6, 3),
    Sketcher.Constraint("Vertical", 5, 3, 7, 3),
    Sketcher.Constraint("Vertical", 9, 3, 10, 3),
    Sketcher.Constraint("Vertical", 8, 3, 11, 3),
    Sketcher.Constraint("Vertical", 12, 3, 13, 3),
    Sketcher.Constraint("Diameter", 0, 12.0),
    Sketcher.Constraint("Diameter", 4, 8.0),
    Sketcher.Constraint("Diameter", 12, 6.0),
    Sketcher.Constraint("DistanceX", 1, 3, 0, 3, 25.0),
    Sketcher.Constraint("DistanceY", 0, 3, 2, 3, 35.0),
    Sketcher.Constraint("DistanceY", 8, 3, 2, 3, 25.0),
    Sketcher.Constraint("DistanceX", 9, 3, 8, 3, 20.0),
    Sketcher.Constraint("DistanceY", 9, 3, 10, 3, 35.0),
    Sketcher.Constraint("DistanceY", 12, 3, 10, 3, 32.0),
    Sketcher.Constraint("DistanceY", 14, 3, 3, 3, 8.0),
    Sketcher.Constraint("DistanceY", 10, 3, 7, 3, 5.5),
    Sketcher.Constraint("DistanceY", 13, 3, 10, 3, 3.5),
    Sketcher.Constraint("DistanceX", 0, 3, 2, 3, 96.0),
    Sketcher.Constraint("DistanceX", 1, 3, 3, 3, 4.0),
    Sketcher.Constraint("DistanceX", 0, 3, 4, 3, 22.0),
    Sketcher.Constraint("DistanceX", 4, 3, 5, 3, 31.0),
    Sketcher.Constraint("DistanceY", 4, 3, 6, 3, 31.0),
    Sketcher.Constraint("DistanceX", 2, 3, 8, 3, 111.0),
    Sketcher.Constraint("DistanceX", 12, 3, 9, 3, 45.0),
    Sketcher.Constraint("DistanceX", 3, 3, 14, 3, 18.5),
    Sketcher.Constraint("DistanceX", 0, 3, -1, 1, 273.3028),
    Sketcher.Constraint("DistanceY", 0, 3, -1, 1, 443.8323),
])
pocket2 = body.newObject("PartDesign::Pocket", "Pocket001")
pocket2.Profile = sketch4
pocket2.Length = 10

doc.recompute()
